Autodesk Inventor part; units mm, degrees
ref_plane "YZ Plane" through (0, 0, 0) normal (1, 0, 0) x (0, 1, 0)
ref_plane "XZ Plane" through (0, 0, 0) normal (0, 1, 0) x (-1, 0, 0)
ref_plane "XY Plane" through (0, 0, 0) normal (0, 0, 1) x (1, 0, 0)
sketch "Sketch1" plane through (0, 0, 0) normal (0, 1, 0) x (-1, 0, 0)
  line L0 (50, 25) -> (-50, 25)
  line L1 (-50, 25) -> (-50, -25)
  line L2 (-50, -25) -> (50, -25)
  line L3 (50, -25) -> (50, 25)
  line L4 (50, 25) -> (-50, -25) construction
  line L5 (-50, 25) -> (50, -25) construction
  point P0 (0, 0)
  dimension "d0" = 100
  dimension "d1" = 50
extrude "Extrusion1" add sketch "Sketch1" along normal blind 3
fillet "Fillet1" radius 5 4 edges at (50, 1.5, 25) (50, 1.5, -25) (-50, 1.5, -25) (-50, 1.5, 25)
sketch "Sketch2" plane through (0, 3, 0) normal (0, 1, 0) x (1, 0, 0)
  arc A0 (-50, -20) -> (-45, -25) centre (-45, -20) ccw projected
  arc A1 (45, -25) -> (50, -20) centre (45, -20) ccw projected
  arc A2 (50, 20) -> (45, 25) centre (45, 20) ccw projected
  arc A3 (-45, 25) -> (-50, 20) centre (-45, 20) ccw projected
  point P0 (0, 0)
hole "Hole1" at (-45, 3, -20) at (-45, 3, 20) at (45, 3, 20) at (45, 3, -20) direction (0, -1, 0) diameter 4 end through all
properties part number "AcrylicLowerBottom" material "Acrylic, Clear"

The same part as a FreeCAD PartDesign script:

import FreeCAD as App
import Part
import Sketcher

V = App.Vector
Q = App.Units.Quantity


def edges_at(feature, points):
    """Names of the edges that pass closest to the given points."""
    edges = feature.Shape.Edges
    near = lambda p: min(range(len(edges)), key=lambda i: edges[i].distToShape(Part.Vertex(*p))[0])
    return sorted({f"Edge{near(p) + 1}" for p in points})

doc = App.newDocument("Part")
body = doc.addObject("PartDesign::Body", "Body")

# Sketch on XZ plane
sketch1 = doc.addObject("Sketcher::SketchObject", "Sketch")
body.addObject(sketch1)
sketch1.AttachmentSupport = (doc.XZ_Plane, [""])
sketch1.MapMode = "FlatFace"
sketch1.addGeometry(Part.LineSegment(V(-50, -25, 0), V(-50, 25, 0)), False)
sketch1.addGeometry(Part.LineSegment(V(-50, 25, 0), V(50, 25, 0)), False)
sketch1.addGeometry(Part.LineSegment(V(50, 25, 0), V(50, -25, 0)), False)
sketch1.addGeometry(Part.LineSegment(V(50, -25, 0), V(-50, -25, 0)), False)
sketch1.addConstraint(Sketcher.Constraint("Coincident", 0, 2, 1, 1))
sketch1.addConstraint(Sketcher.Constraint("Coincident", 1, 2, 2, 1))
sketch1.addConstraint(Sketcher.Constraint("Coincident", 2, 2, 3, 1))
sketch1.addConstraint(Sketcher.Constraint("Coincident", 3, 2, 0, 1))
sketch1.addConstraint(Sketcher.Constraint("Vertical", 0))
sketch1.addConstraint(Sketcher.Constraint("Horizontal", 1))
sketch1.addConstraint(Sketcher.Constraint("Vertical", 2))
sketch1.addConstraint(Sketcher.Constraint("Horizontal", 3))
sketch1.addConstraint(Sketcher.Constraint("Symmetric", 0, 2, 2, 2, -1, 1))
sketch1.addConstraint(Sketcher.Constraint("DistanceX", 1, 1, 1, 2, Q("100 mm")))
sketch1.addConstraint(Sketcher.Constraint("DistanceY", 0, 1, 0, 2, Q("50 mm")))
pad1 = doc.addObject("PartDesign::Pad", "Pad")
body.addObject(pad1)
pad1.Profile = sketch1
pad1.Length = 3
pad1.Reversed = True
doc.recompute()

fillet = doc.addObject("PartDesign::Fillet", "Fillet")
body.addObject(fillet)
fillet.Base = (pad1, edges_at(pad1, [
    (50, 1.5, 25),
    (50, 1.5, -25),
    (-50, 1.5, -25),
    (-50, 1.5, 25),
]))
fillet.Radius = 5

# Sketch on XZ plane
sketch2 = doc.addObject("Sketcher::SketchObject", "Sketch001")
body.addObject(sketch2)
sketch2.AttachmentSupport = (doc.XZ_Plane, [""])
sketch2.MapMode = "FlatFace"
sketch2.AttachmentOffset = App.Placement(V(0, 0, -3), App.Rotation())
sketch2.addGeometry(Part.Circle(V(-45, -20, 0), V(0, 0, 1), 2), False)
sketch2.addGeometry(Part.Circle(V(-45, 20, 0), V(0, 0, 1), 2), False)
sketch2.addGeometry(Part.Circle(V(45, 20, 0), V(0, 0, 1), 2), False)
sketch2.addGeometry(Part.Circle(V(45, -20, 0), V(0, 0, 1), 2), False)
sketch2.addConstraint(Sketcher.Constraint("Equal", 0, 1))
sketch2.addConstraint(Sketcher.Constraint("Equal", 1, 2))
sketch2.addConstraint(Sketcher.Constraint("Equal", 2, 3))
sketch2.addConstraint(Sketcher.Constraint("Symmetric", 0, 3, 2, 3, -1, 1))
sketch2.addConstraint(Sketcher.Constraint("Symmetric", 1, 3, 3, 3, -1, 1))
sketch2.addConstraint(Sketcher.Constraint("Symmetric", 1, 3, 2, 3, -2))
sketch2.addConstraint(Sketcher.Constraint("Diameter", 0, Q("4 mm")))
sketch2.addConstraint(Sketcher.Constraint("DistanceX", 0, 3, -1, 1, Q("45 mm")))
sketch2.addConstraint(Sketcher.Constraint("DistanceY", 0, 3, -1, 1, Q("20 mm")))
doc.recompute()
hole = doc.addObject("PartDesign::Hole", "Hole")
body.addObject(hole)
hole.Profile = sketch2
hole.ThreadType = "None"
hole.Diameter = 4
hole.DepthType = "ThroughAll"
hole.Reversed = True

doc.recompute()
